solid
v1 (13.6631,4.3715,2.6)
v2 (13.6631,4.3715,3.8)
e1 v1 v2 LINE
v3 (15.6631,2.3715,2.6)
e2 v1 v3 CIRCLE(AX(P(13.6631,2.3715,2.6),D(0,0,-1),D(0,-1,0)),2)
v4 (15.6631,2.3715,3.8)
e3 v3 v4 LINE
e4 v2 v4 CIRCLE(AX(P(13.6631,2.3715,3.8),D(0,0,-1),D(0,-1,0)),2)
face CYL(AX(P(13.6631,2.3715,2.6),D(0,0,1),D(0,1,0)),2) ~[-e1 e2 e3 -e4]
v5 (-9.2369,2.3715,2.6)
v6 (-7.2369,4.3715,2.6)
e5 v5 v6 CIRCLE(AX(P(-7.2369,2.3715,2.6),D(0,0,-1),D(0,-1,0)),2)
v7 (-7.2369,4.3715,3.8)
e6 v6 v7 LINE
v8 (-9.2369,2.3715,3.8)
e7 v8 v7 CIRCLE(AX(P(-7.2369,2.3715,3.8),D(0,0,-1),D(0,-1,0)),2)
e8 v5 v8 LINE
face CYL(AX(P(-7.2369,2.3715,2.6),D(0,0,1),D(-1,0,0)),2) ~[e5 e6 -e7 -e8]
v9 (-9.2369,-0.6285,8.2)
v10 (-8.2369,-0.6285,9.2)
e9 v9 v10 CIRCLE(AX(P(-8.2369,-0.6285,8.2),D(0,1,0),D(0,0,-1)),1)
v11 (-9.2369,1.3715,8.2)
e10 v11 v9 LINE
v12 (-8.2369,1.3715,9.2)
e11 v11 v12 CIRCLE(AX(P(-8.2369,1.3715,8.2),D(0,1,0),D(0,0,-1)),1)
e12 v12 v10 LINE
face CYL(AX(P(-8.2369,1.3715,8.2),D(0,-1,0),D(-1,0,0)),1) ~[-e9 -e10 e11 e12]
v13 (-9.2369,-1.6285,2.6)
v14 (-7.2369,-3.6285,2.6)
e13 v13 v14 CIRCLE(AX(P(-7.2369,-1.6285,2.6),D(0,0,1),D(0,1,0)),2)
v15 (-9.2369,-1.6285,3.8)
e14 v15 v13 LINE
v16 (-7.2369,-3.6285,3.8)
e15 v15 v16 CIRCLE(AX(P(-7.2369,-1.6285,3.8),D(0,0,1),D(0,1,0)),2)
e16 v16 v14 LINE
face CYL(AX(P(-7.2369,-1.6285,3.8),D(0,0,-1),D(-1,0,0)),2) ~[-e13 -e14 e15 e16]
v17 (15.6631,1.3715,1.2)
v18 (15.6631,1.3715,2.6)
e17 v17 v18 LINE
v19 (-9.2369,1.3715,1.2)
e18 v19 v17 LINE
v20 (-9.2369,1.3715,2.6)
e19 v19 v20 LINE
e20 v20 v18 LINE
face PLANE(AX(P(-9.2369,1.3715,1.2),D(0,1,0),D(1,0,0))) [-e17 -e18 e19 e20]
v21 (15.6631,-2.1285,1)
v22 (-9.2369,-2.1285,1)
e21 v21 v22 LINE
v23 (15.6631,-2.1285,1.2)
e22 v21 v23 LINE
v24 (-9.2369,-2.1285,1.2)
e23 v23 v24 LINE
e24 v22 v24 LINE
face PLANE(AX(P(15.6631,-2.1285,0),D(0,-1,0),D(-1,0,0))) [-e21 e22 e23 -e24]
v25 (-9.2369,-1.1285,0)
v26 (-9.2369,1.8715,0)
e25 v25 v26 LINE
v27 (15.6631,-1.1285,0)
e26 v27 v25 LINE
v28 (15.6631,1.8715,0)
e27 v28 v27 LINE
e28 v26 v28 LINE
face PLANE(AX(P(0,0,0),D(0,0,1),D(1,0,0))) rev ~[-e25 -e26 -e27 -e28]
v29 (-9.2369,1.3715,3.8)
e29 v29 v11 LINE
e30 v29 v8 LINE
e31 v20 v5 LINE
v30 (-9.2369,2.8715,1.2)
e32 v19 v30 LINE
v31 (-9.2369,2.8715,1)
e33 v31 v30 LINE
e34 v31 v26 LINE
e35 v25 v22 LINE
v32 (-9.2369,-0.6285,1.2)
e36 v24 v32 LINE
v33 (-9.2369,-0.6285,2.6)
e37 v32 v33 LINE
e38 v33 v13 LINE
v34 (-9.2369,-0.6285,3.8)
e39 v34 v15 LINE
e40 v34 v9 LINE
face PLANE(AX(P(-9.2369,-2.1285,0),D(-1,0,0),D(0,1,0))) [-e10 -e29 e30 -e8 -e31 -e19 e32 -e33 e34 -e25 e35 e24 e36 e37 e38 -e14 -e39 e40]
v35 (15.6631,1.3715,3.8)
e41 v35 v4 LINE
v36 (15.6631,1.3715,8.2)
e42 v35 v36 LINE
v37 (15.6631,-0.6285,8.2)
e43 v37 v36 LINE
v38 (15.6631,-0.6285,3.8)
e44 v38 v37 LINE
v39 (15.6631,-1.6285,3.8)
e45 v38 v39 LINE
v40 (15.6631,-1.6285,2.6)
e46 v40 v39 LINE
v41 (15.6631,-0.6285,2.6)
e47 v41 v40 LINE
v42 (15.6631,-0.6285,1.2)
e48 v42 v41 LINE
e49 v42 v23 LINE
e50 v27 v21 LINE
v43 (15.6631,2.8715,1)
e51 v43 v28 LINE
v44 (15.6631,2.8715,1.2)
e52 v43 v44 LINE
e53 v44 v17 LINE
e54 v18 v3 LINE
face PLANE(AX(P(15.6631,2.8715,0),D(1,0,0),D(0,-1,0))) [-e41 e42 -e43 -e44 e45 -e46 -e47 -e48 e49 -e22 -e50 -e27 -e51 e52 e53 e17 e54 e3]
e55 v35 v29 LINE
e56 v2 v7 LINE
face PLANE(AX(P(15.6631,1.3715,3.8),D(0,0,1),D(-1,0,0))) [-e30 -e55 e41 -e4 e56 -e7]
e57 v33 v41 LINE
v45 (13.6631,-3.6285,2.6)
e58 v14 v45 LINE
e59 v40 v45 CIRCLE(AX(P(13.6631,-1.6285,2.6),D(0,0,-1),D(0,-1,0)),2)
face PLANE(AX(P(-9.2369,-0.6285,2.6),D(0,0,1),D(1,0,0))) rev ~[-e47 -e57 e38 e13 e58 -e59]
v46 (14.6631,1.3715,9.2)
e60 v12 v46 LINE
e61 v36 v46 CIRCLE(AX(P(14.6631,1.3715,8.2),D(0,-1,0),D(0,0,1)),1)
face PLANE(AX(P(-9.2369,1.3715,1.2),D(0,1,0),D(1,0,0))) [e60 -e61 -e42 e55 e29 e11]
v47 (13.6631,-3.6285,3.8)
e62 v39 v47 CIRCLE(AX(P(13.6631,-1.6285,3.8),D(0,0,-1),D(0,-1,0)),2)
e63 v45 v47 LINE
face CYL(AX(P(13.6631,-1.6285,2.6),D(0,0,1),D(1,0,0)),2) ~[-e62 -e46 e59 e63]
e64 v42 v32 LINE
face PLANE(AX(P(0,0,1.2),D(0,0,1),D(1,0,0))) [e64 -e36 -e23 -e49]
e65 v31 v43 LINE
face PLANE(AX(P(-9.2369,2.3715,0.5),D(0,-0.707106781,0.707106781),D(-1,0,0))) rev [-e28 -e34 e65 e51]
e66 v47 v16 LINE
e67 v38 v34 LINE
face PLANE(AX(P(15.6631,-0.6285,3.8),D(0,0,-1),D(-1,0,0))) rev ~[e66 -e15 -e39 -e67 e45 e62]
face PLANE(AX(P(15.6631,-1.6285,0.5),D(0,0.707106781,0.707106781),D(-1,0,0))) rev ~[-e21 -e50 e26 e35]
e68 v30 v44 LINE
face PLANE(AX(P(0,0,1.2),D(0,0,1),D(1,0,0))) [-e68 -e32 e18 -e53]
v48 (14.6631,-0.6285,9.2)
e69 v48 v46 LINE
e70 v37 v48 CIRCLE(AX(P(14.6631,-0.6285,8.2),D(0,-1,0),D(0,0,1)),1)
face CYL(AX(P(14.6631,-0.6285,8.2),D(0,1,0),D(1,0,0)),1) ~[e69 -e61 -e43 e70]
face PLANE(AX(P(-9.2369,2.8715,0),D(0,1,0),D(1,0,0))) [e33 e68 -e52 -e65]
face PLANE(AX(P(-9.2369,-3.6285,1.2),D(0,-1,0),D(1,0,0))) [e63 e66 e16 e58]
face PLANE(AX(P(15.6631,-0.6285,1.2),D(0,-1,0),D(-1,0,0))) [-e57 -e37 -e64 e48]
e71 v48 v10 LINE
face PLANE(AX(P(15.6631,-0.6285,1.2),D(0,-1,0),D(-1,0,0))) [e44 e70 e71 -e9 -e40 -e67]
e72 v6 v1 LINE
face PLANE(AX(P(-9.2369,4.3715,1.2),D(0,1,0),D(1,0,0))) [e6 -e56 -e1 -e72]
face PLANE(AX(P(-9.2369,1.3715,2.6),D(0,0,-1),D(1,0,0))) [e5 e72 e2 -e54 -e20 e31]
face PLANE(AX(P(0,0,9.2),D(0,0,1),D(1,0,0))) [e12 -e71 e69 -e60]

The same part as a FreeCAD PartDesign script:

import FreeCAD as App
import Part
import Sketcher

V = App.Vector
Q = App.Units.Quantity


def edges_at(feature, points):
    """Names of the edges that pass closest to the given points."""
    edges = feature.Shape.Edges
    near = lambda p: min(range(len(edges)), key=lambda i: edges[i].distToShape(Part.Vertex(*p))[0])
    return sorted({f"Edge{near(p) + 1}" for p in points})


def add_polygon(sketch, points):
    """Adds a closed chain of lines whose ends are joined by coincident constraints."""
    first, n = sketch.GeometryCount, len(points)
    for a, b in zip(points, points[1:] + points[:1]):
        sketch.addGeometry(Part.LineSegment(App.Vector(*a, 0), App.Vector(*b, 0)), False)
    for i in range(n):
        sketch.addConstraint(Sketcher.Constraint("Coincident", first + i, 2, first + (i + 1) % n, 1))

doc = App.newDocument("Part")
body = doc.addObject("PartDesign::Body", "Body")

# Sketch on XY plane
sketch1 = body.newObject("Sketcher::SketchObject", "Sketch")
sketch1.AttachmentSupport = (doc.getObject("XY_Plane"), [""])
sketch1.MapMode = "FlatFace"
add_polygon(sketch1, [(15.6631, 2.8715), (-9.2369, 2.8715), (-9.2369, -2.1285), (15.6631, -2.1285)])  # lines 0-3
sketch1.addConstraint(Sketcher.Constraint("Horizontal", 0))
sketch1.addConstraint(Sketcher.Constraint("Vertical", 1))
sketch1.addConstraint(Sketcher.Constraint("Horizontal", 2))
sketch1.addConstraint(Sketcher.Constraint("Vertical", 3))
sketch1.addConstraint(Sketcher.Constraint("DistanceY", 1, 2, 1, 1, Q("5 mm")))
sketch1.addConstraint(Sketcher.Constraint("DistanceX", 0, 2, 0, 1, Q("24.9 mm")))
sketch1.addConstraint(Sketcher.Constraint("DistanceX", 0, 2, -1, 1, Q("9.237 mm")))
sketch1.addConstraint(Sketcher.Constraint("DistanceY", -1, 1, 0, 2, Q("2.8715 mm")))
pad1 = body.newObject("PartDesign::Pad", "Pad")
pad1.Profile = sketch1
pad1.Length = 1.2

# Sketch on XY plane
sketch2 = body.newObject("Sketcher::SketchObject", "Sketch001")
sketch2.AttachmentSupport = (doc.getObject("XY_Plane"), [""])
sketch2.MapMode = "FlatFace"
sketch2.AttachmentOffset = App.Placement(V(0, 0, 1.2), App.Rotation())
add_polygon(sketch2, [(15.6631, 1.3715), (-9.2369, 1.3715), (-9.2369, -0.6285), (15.6631, -0.6285)])  # lines 0-3
sketch2.addConstraint(Sketcher.Constraint("Horizontal", 0))
sketch2.addConstraint(Sketcher.Constraint("Vertical", 1))
sketch2.addConstraint(Sketcher.Constraint("Horizontal", 2))
sketch2.addConstraint(Sketcher.Constraint("Vertical", 3))
sketch2.addConstraint(Sketcher.Constraint("DistanceY", 1, 2, 1, 1, Q("2 mm")))
sketch2.addConstraint(Sketcher.Constraint("DistanceX", 0, 2, 0, 1, Q("24.9 mm")))
sketch2.addConstraint(Sketcher.Constraint("DistanceX", 0, 2, -1, 1, Q("9.237 mm")))
sketch2.addConstraint(Sketcher.Constraint("DistanceY", -1, 1, 0, 2, Q("1.3715 mm")))
pad2 = body.newObject("PartDesign::Pad", "Pad001")
pad2.Profile = sketch2
pad2.Length = 8
doc.recompute()

chamfer = body.newObject("PartDesign::Chamfer", "Chamfer")
chamfer.Base = (pad2, edges_at(pad2, [(3.213, 2.872, 0), (3.213, -2.128, 0)]))
chamfer.Size = 1
doc.recompute()

fillet = body.newObject("PartDesign::Fillet", "Fillet")
fillet.Base = (chamfer, edges_at(chamfer, [(-9.237, 0.371, 9.2), (15.663, 0.371, 9.2)]))
fillet.Radius = 1

# Sketch on XZ plane
sketch3 = body.newObject("Sketcher::SketchObject", "Sketch002")
sketch3.AttachmentSupport = (doc.getObject("XZ_Plane"), [""])
sketch3.MapMode = "FlatFace"
sketch3.AttachmentOffset = App.Placement(V(0, 0, -1.3715), App.Rotation())
add_polygon(sketch3, [(15.6631, 2.6), (-9.2369, 2.6), (-9.2369, 3.8), (15.6631, 3.8)])  # lines 0-3
sketch3.addConstraint(Sketcher.Constraint("Horizontal", 0))
sketch3.addConstraint(Sketcher.Constraint("Vertical", 1))
sketch3.addConstraint(Sketcher.Constraint("Horizontal", 2))
sketch3.addConstraint(Sketcher.Constraint("Vertical", 3))
sketch3.addConstraint(Sketcher.Constraint("DistanceY", 1, 1, 1, 2, Q("1.2 mm")))
sketch3.addConstraint(Sketcher.Constraint("DistanceX", 0, 2, 0, 1, Q("24.9 mm")))
sketch3.addConstraint(Sketcher.Constraint("DistanceY", -1, 1, 0, 2, Q("2.6 mm")))
sketch3.addConstraint(Sketcher.Constraint("DistanceX", 0, 2, -1, 1, Q("9.237 mm")))
pad3 = body.newObject("PartDesign::Pad", "Pad002")
pad3.Profile = sketch3
pad3.Length = 3
pad3.Reversed = True

# Sketch on XZ plane
sketch4 = body.newObject("Sketcher::SketchObject", "Sketch003")
sketch4.AttachmentSupport = (doc.getObject("XZ_Plane"), [""])
sketch4.MapMode = "FlatFace"
sketch4.AttachmentOffset = App.Placement(V(0, 0, 0.6285), App.Rotation())
add_polygon(sketch4, [(15.6631, 2.6), (15.6631, 3.8), (-9.2369, 3.8), (-9.2369, 2.6)])  # lines 0-3
sketch4.addConstraint(Sketcher.Constraint("Vertical", 0))
sketch4.addConstraint(Sketcher.Constraint("Horizontal", 1))
sketch4.addConstraint(Sketcher.Constraint("Vertical", 2))
sketch4.addConstraint(Sketcher.Constraint("Horizontal", 3))
sketch4.addConstraint(Sketcher.Constraint("DistanceX", 1, 2, 1, 1, Q("24.9 mm")))
sketch4.addConstraint(Sketcher.Constraint("DistanceY", 0, 1, 0, 2, Q("1.2 mm")))
sketch4.addConstraint(Sketcher.Constraint("DistanceY", -1, 1, 0, 2, Q("3.8 mm")))
sketch4.addConstraint(Sketcher.Constraint("DistanceX", -1, 1, 0, 2, Q("15.663 mm")))
pad4 = body.newObject("PartDesign::Pad", "Pad003")
pad4.Profile = sketch4
pad4.Length = 3
doc.recompute()

fillet2 = body.newObject("PartDesign::Fillet", "Fillet001")
fillet2.Base = (pad4, edges_at(pad4, [
    (-9.237, 4.372, 3.2),
    (-9.237, -3.628, 3.2),
    (15.663, 4.372, 3.2),
    (15.663, -3.628, 3.2),
]))
fillet2.Radius = 2

doc.recompute()
